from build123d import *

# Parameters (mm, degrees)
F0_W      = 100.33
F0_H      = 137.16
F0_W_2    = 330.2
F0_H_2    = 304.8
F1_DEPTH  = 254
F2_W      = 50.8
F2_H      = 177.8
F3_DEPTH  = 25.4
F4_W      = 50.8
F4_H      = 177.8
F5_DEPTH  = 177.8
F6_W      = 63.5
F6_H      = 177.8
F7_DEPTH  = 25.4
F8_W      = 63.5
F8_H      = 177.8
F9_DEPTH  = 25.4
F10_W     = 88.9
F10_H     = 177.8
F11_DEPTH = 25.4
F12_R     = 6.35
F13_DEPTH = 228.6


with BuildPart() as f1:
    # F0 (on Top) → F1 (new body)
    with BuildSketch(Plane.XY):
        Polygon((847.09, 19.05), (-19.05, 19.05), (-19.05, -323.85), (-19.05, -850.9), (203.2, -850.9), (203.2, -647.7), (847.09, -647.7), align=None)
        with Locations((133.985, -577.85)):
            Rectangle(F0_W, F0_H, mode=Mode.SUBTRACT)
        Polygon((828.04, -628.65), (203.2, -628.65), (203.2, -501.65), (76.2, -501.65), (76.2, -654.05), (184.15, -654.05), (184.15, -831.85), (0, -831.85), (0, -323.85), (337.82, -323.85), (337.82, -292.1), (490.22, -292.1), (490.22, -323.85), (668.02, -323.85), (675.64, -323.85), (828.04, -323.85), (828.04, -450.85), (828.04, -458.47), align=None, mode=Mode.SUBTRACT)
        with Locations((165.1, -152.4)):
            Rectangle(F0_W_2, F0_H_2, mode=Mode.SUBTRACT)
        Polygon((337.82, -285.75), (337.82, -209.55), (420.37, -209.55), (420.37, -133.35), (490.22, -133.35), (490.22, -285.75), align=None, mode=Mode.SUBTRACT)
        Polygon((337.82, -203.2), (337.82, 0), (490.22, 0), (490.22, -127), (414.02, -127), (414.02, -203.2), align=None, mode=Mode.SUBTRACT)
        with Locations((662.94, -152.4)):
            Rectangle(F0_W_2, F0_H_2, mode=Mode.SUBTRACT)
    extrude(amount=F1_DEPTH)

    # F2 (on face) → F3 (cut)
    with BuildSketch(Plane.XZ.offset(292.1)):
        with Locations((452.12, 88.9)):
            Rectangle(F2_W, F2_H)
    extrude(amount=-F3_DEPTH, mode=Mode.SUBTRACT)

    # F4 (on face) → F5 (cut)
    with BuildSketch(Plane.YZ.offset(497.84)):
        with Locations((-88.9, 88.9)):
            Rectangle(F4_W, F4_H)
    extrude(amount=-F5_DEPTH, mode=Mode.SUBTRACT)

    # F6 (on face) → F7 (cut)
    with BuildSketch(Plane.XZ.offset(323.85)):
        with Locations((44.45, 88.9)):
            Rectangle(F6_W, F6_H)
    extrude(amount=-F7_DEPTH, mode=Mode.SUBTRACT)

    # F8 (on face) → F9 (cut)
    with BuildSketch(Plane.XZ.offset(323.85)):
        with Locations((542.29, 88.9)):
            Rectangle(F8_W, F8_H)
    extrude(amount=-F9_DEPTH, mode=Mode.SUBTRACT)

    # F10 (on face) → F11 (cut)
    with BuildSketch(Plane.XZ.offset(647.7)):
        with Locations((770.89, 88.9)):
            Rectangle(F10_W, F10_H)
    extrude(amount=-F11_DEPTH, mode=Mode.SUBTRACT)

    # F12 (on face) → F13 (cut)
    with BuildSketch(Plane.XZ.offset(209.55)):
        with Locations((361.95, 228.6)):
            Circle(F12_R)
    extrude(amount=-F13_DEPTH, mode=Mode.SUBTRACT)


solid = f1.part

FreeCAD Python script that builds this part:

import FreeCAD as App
import Part
import Sketcher
from FreeCAD import Vector
Q = App.Units.Quantity

doc = App.newDocument("Part")
body = doc.addObject("PartDesign::Body", "Body")

# Sketch on XY plane
sketch1 = doc.addObject("Sketcher::SketchObject", "Sketch")
body.addObject(sketch1)
sketch1.AttachmentSupport = (doc.XY_Plane, [""])
sketch1.MapMode = "FlatFace"
sketch1.addGeometry([
    Part.LineSegment(Vector(847.09, 19.05, 0), Vector(-19.05, 19.05, 0)),  # 0
    Part.LineSegment(Vector(-19.05, 19.05, 0), Vector(-19.05, -850.9, 0)),  # 1
    Part.LineSegment(Vector(-19.05, -850.9, 0), Vector(203.2, -850.9, 0)),  # 2
    Part.LineSegment(Vector(203.2, -850.9, 0), Vector(203.2, -647.7, 0)),  # 3
    Part.LineSegment(Vector(203.2, -647.7, 0), Vector(847.09, -647.7, 0)),  # 4
    Part.LineSegment(Vector(847.09, -647.7, 0), Vector(847.09, 19.05, 0)),  # 5
    Part.LineSegment(Vector(184.15, -646.43, 0), Vector(83.82, -646.43, 0)),  # 6
    Part.LineSegment(Vector(83.82, -646.43, 0), Vector(83.82, -509.27, 0)),  # 7
    Part.LineSegment(Vector(83.82, -509.27, 0), Vector(184.15, -509.27, 0)),  # 8
    Part.LineSegment(Vector(184.15, -509.27, 0), Vector(184.15, -646.43, 0)),  # 9
    Part.LineSegment(Vector(828.04, -323.85, 0), Vector(828.04, -628.65, 0)),  # 10
    Part.LineSegment(Vector(828.04, -628.65, 0), Vector(203.2, -628.65, 0)),  # 11
    Part.LineSegment(Vector(203.2, -628.65, 0), Vector(203.2, -501.65, 0)),  # 12
    Part.LineSegment(Vector(203.2, -501.65, 0), Vector(76.2, -501.65, 0)),  # 13
    Part.LineSegment(Vector(76.2, -501.65, 0), Vector(76.2, -654.05, 0)),  # 14
    Part.LineSegment(Vector(76.2, -654.05, 0), Vector(184.15, -654.05, 0)),  # 15
    Part.LineSegment(Vector(184.15, -654.05, 0), Vector(184.15, -831.85, 0)),  # 16
    Part.LineSegment(Vector(184.15, -831.85, 0), Vector(0, -831.85, 0)),  # 17
    Part.LineSegment(Vector(0, -831.85, 0), Vector(0, -323.85, 0)),  # 18
    Part.LineSegment(Vector(0, -323.85, 0), Vector(337.82, -323.85, 0)),  # 19
    Part.LineSegment(Vector(337.82, -323.85, 0), Vector(337.82, -292.1, 0)),  # 20
    Part.LineSegment(Vector(337.82, -292.1, 0), Vector(490.22, -292.1, 0)),  # 21
    Part.LineSegment(Vector(490.22, -292.1, 0), Vector(490.22, -323.85, 0)),  # 22
    Part.LineSegment(Vector(490.22, -323.85, 0), Vector(828.04, -323.85, 0)),  # 23
    Part.LineSegment(Vector(490.22, -285.75, 0), Vector(337.82, -285.75, 0)),  # 24
    Part.LineSegment(Vector(337.82, -285.75, 0), Vector(337.82, -209.55, 0)),  # 25
    Part.LineSegment(Vector(337.82, -209.55, 0), Vector(420.37, -209.55, 0)),  # 26
    Part.LineSegment(Vector(420.37, -209.55, 0), Vector(420.37, -133.35, 0)),  # 27
    Part.LineSegment(Vector(420.37, -133.35, 0), Vector(490.22, -133.35, 0)),  # 28
    Part.LineSegment(Vector(490.22, -133.35, 0), Vector(490.22, -285.75, 0)),  # 29
    Part.LineSegment(Vector(330.2, -304.8, 0), Vector(0, -304.8, 0)),  # 30
    Part.LineSegment(Vector(0, -304.8, 0), Vector(0, 0, 0)),  # 31
    Part.LineSegment(Vector(0, 0, 0), Vector(330.2, 0, 0)),  # 32
    Part.LineSegment(Vector(330.2, 0, 0), Vector(330.2, -304.8, 0)),  # 33
    Part.LineSegment(Vector(414.02, -203.2, 0), Vector(337.82, -203.2, 0)),  # 34
    Part.LineSegment(Vector(337.82, -203.2, 0), Vector(337.82, 0, 0)),  # 35
    Part.LineSegment(Vector(337.82, 0, 0), Vector(490.22, 0, 0)),  # 36
    Part.LineSegment(Vector(490.22, 0, 0), Vector(490.22, -127, 0)),  # 37
    Part.LineSegment(Vector(490.22, -127, 0), Vector(414.02, -127, 0)),  # 38
    Part.LineSegment(Vector(414.02, -127, 0), Vector(414.02, -203.2, 0)),  # 39
    Part.LineSegment(Vector(828.04, -304.8, 0), Vector(497.84, -304.8, 0)),  # 40
    Part.LineSegment(Vector(497.84, -304.8, 0), Vector(497.84, 0, 0)),  # 41
    Part.LineSegment(Vector(497.84, 0, 0), Vector(828.04, 0, 0)),  # 42
    Part.LineSegment(Vector(828.04, 0, 0), Vector(828.04, -304.8, 0)),  # 43
], False)
sketch1.addConstraint([
    Sketcher.Constraint("Coincident", 0, 2, 1, 1),
    Sketcher.Constraint("Coincident", 1, 2, 2, 1),
    Sketcher.Constraint("Coincident", 2, 2, 3, 1),
    Sketcher.Constraint("Coincident", 3, 2, 4, 1),
    Sketcher.Constraint("Coincident", 4, 2, 5, 1),
    Sketcher.Constraint("Coincident", 5, 2, 0, 1),
    Sketcher.Constraint("Coincident", 6, 2, 7, 1),
    Sketcher.Constraint("Coincident", 7, 2, 8, 1),
    Sketcher.Constraint("Coincident", 8, 2, 9, 1),
    Sketcher.Constraint("Coincident", 9, 2, 6, 1),
    Sketcher.Constraint("Coincident", 10, 2, 11, 1),
    Sketcher.Constraint("Coincident", 11, 2, 12, 1),
    Sketcher.Constraint("Coincident", 12, 2, 13, 1),
    Sketcher.Constraint("Coincident", 13, 2, 14, 1),
    Sketcher.Constraint("Coincident", 14, 2, 15, 1),
    Sketcher.Constraint("Coincident", 15, 2, 16, 1),
    Sketcher.Constraint("Coincident", 16, 2, 17, 1),
    Sketcher.Constraint("Coincident", 17, 2, 18, 1),
    Sketcher.Constraint("Coincident", 18, 2, 19, 1),
    Sketcher.Constraint("Coincident", 19, 2, 20, 1),
    Sketcher.Constraint("Coincident", 20, 2, 21, 1),
    Sketcher.Constraint("Coincident", 21, 2, 22, 1),
    Sketcher.Constraint("Coincident", 22, 2, 23, 1),
    Sketcher.Constraint("Coincident", 23, 2, 10, 1),
    Sketcher.Constraint("Coincident", 24, 2, 25, 1),
    Sketcher.Constraint("Coincident", 25, 2, 26, 1),
    Sketcher.Constraint("Coincident", 26, 2, 27, 1),
    Sketcher.Constraint("Coincident", 27, 2, 28, 1),
    Sketcher.Constraint("Coincident", 28, 2, 29, 1),
    Sketcher.Constraint("Coincident", 29, 2, 24, 1),
    Sketcher.Constraint("Coincident", 30, 2, 31, 1),
    Sketcher.Constraint("Coincident", 31, 2, 32, 1),
    Sketcher.Constraint("Coincident", 32, 2, 33, 1),
    Sketcher.Constraint("Coincident", 33, 2, 30, 1),
    Sketcher.Constraint("Coincident", 34, 2, 35, 1),
    Sketcher.Constraint("Coincident", 35, 2, 36, 1),
    Sketcher.Constraint("Coincident", 36, 2, 37, 1),
    Sketcher.Constraint("Coincident", 37, 2, 38, 1),
    Sketcher.Constraint("Coincident", 38, 2, 39, 1),
    Sketcher.Constraint("Coincident", 39, 2, 34, 1),
    Sketcher.Constraint("Coincident", 40, 2, 41, 1),
    Sketcher.Constraint("Coincident", 41, 2, 42, 1),
    Sketcher.Constraint("Coincident", 42, 2, 43, 1),
    Sketcher.Constraint("Coincident", 43, 2, 40, 1),
    Sketcher.Constraint("Horizontal", 0),
    Sketcher.Constraint("Vertical", 1),
    Sketcher.Constraint("Horizontal", 2),
    Sketcher.Constraint("Vertical", 3),
    Sketcher.Constraint("Horizontal", 4),
    Sketcher.Constraint("Vertical", 5),
    Sketcher.Constraint("Horizontal", 6),
    Sketcher.Constraint("Vertical", 7),
    Sketcher.Constraint("Horizontal", 8),
    Sketcher.Constraint("Vertical", 9),
    Sketcher.Constraint("Vertical", 10),
    Sketcher.Constraint("Horizontal", 11),
    Sketcher.Constraint("Vertical", 12),
    Sketcher.Constraint("Horizontal", 13),
    Sketcher.Constraint("Vertical", 14),
    Sketcher.Constraint("Horizontal", 15),
    Sketcher.Constraint("Vertical", 16),
    Sketcher.Constraint("Horizontal", 17),
    Sketcher.Constraint("Vertical", 18),
    Sketcher.Constraint("Horizontal", 19),
    Sketcher.Constraint("Vertical", 20),
    Sketcher.Constraint("Horizontal", 21),
    Sketcher.Constraint("Vertical", 22),
    Sketcher.Constraint("Horizontal", 23),
    Sketcher.Constraint("Horizontal", 24),
    Sketcher.Constraint("Vertical", 25),
    Sketcher.Constraint("Horizontal", 26),
    Sketcher.Constraint("Vertical", 27),
    Sketcher.Constraint("Horizontal", 28),
    Sketcher.Constraint("Vertical", 29),
    Sketcher.Constraint("Horizontal", 30),
    Sketcher.Constraint("Vertical", 31),
    Sketcher.Constraint("Horizontal", 32),
    Sketcher.Constraint("Vertical", 33),
    Sketcher.Constraint("Horizontal", 34),
    Sketcher.Constraint("Vertical", 35),
    Sketcher.Constraint("Horizontal", 36),
    Sketcher.Constraint("Vertical", 37),
    Sketcher.Constraint("Horizontal", 38),
    Sketcher.Constraint("Vertical", 39),
    Sketcher.Constraint("Horizontal", 40),
    Sketcher.Constraint("Vertical", 41),
    Sketcher.Constraint("Horizontal", 42),
    Sketcher.Constraint("Vertical", 43),
    Sketcher.Constraint("Coincident", 31, 2, -1, 1),
    Sketcher.Constraint("PointOnObject", 17, 2, -2),
    Sketcher.Constraint("PointOnObject", 35, 2, -1),
    Sketcher.Constraint("PointOnObject", 41, 2, -1),
    Sketcher.Constraint("Horizontal", 19, 2, 22, 2),
    Sketcher.Constraint("Horizontal", 33, 2, 40, 2),
    Sketcher.Constraint("Vertical", 3, 2, 11, 2),
    Sketcher.Constraint("Vertical", 9, 2, 15, 2),
    Sketcher.Constraint("Vertical", 20, 2, 24, 2),
    Sketcher.Constraint("Vertical", 22, 2, 28, 2),
    Sketcher.Constraint("Vertical", 25, 2, 34, 2),
    Sketcher.Constraint("Vertical", 29, 2, 36, 2),
    Sketcher.Constraint("Vertical", 23, 2, 42, 2),
    Sketcher.Constraint("Equal", 19, 23),
    Sketcher.Constraint("Equal", 34, 38),
    Sketcher.Constraint("Equal", 32, 40),
    Sketcher.Constraint("Equal", 13, 12),
    Sketcher.Constraint("Equal", 36, 14),
    Sketcher.Constraint("Equal", 38, 25),
    Sketcher.Constraint("Equal", 25, 27),
    Sketcher.Constraint("Equal", 10, 31),
    Sketcher.Constraint("Equal", 3, 35),
    Sketcher.Constraint("Equal", 12, 37),
    Sketcher.Constraint("Equal", 27, 39),
    Sketcher.Constraint("DistanceX", 13, 2, 13, 1, Q("5 in")),
    Sketcher.Constraint("DistanceX", 21, 1, 21, 2, Q("6 in")),
    Sketcher.Constraint("DistanceX", 30, 2, 30, 1, Q("13 in")),
    Sketcher.Constraint("DistanceY", 10, 2, 10, 1, Q("12 in")),
    Sketcher.Constraint("DistanceY", 16, 2, 16, 1, Q("7 in")),
    Sketcher.Constraint("DistanceX", 0, 2, 0, 1, Q("34.1 in")),
    Sketcher.Constraint("DistanceX", 11, 2, 11, 1, Q("24.6 in")),
    Sketcher.Constraint("DistanceX", 19, 1, 19, 2, Q("13.3 in")),
    Sketcher.Constraint("DistanceY", 7, 1, 7, 2, Q("5.4 in")),
    Sketcher.Constraint("DistanceX", 1, 2, 8, 2, Q("8 in")),
    Sketcher.Constraint("DistanceX", 7, 2, 19, 2, Q("10 in")),
    Sketcher.Constraint("DistanceX", 2, 1, 2, 2, Q("8.75 in")),
    Sketcher.Constraint("DistanceX", 26, 1, 26, 2, Q("3.25 in")),
    Sketcher.Constraint("DistanceY", 1, 2, 1, 1, Q("34.25 in")),
    Sketcher.Constraint("DistanceY", 20, 1, 20, 2, Q("1.25 in")),
    Sketcher.Constraint("DistanceY", 1, 2, -1, 1, Q("33.5 in")),
    Sketcher.Constraint("DistanceY", 20, 2, -1, 1, Q("11.5 in")),
    Sketcher.Constraint("DistanceY", 6, 2, 0, 2, Q("26.2 in")),
    Sketcher.Constraint("DistanceY", 19, 2, 24, 2, Q("1.5 in")),
])
pad1 = doc.addObject("PartDesign::Pad", "Pad")
body.addObject(pad1)
pad1.Profile = sketch1
pad1.Length = Q("10 in")

# Sketch on XZ plane
sketch2 = doc.addObject("Sketcher::SketchObject", "Sketch001")
body.addObject(sketch2)
sketch2.AttachmentSupport = (doc.XZ_Plane, [""])
sketch2.MapMode = "FlatFace"
sketch2.AttachmentOffset = App.Placement(Vector(0, 0, 11.5 * 25.4), App.Rotation())
sketch2.addGeometry([
    Part.LineSegment(Vector(426.72, 177.8, 0), Vector(426.72, 0, 0)),
    Part.LineSegment(Vector(426.72, 0, 0), Vector(477.52, 0, 0)),
    Part.LineSegment(Vector(477.52, 0, 0), Vector(477.52, 177.8, 0)),
    Part.LineSegment(Vector(477.52, 177.8, 0), Vector(426.72, 177.8, 0)),
], False)
sketch2.addConstraint([
    Sketcher.Constraint("Coincident", 0, 2, 1, 1),
    Sketcher.Constraint("Coincident", 1, 2, 2, 1),
    Sketcher.Constraint("Coincident", 2, 2, 3, 1),
    Sketcher.Constraint("Coincident", 3, 2, 0, 1),
    Sketcher.Constraint("Vertical", 0),
    Sketcher.Constraint("Horizontal", 1),
    Sketcher.Constraint("Vertical", 2),
    Sketcher.Constraint("Horizontal", 3),
    Sketcher.Constraint("PointOnObject", 0, 2, -1),
    Sketcher.Constraint("DistanceX", 1, 1, 1, 2, Q("2 in")),
    Sketcher.Constraint("DistanceY", 0, 2, 0, 1, Q("7 in")),
    Sketcher.Constraint("DistanceX", -1, 1, 0, 2, Q("16.8 in")),
])
pocket1 = doc.addObject("PartDesign::Pocket", "Pocket")
body.addObject(pocket1)
pocket1.Profile = sketch2
pocket1.Length = Q("1 in")

# Sketch on YZ plane
sketch3 = doc.addObject("Sketcher::SketchObject", "Sketch002")
body.addObject(sketch3)
sketch3.AttachmentSupport = (doc.YZ_Plane, [""])
sketch3.MapMode = "FlatFace"
sketch3.AttachmentOffset = App.Placement(Vector(0, 0, 19.6 * 25.4), App.Rotation())
sketch3.addGeometry([
    Part.LineSegment(Vector(-114.3, 177.8, 0), Vector(-114.3, 0, 0)),
    Part.LineSegment(Vector(-114.3, 0, 0), Vector(-63.5, 0, 0)),
    Part.LineSegment(Vector(-63.5, 0, 0), Vector(-63.5, 177.8, 0)),
    Part.LineSegment(Vector(-63.5, 177.8, 0), Vector(-114.3, 177.8, 0)),
], False)
sketch3.addConstraint([
    Sketcher.Constraint("Coincident", 0, 2, 1, 1),
    Sketcher.Constraint("Coincident", 1, 2, 2, 1),
    Sketcher.Constraint("Coincident", 2, 2, 3, 1),
    Sketcher.Constraint("Coincident", 3, 2, 0, 1),
    Sketcher.Constraint("Vertical", 0),
    Sketcher.Constraint("Horizontal", 1),
    Sketcher.Constraint("Vertical", 2),
    Sketcher.Constraint("Horizontal", 3),
    Sketcher.Constraint("PointOnObject", 0, 2, -1),
    Sketcher.Constraint("DistanceX", 1, 1, 1, 2, Q("2 in")),
    Sketcher.Constraint("DistanceY", 0, 2, 0, 1, Q("7 in")),
    Sketcher.Constraint("DistanceX", 0, 2, -1, 1, Q("4.5 in")),
])
pocket2 = doc.addObject("PartDesign::Pocket", "Pocket001")
body.addObject(pocket2)
pocket2.Profile = sketch3
pocket2.Length = Q("7 in")

# Sketch on XZ plane
sketch4 = doc.addObject("Sketcher::SketchObject", "Sketch003")
body.addObject(sketch4)
sketch4.AttachmentSupport = (doc.XZ_Plane, [""])
sketch4.MapMode = "FlatFace"
sketch4.AttachmentOffset = App.Placement(Vector(0, 0, 12.75 * 25.4), App.Rotation())
sketch4.addGeometry([
    Part.LineSegment(Vector(12.7, 177.8, 0), Vector(12.7, 0, 0)),
    Part.LineSegment(Vector(12.7, 0, 0), Vector(76.2, 0, 0)),
    Part.LineSegment(Vector(76.2, 0, 0), Vector(76.2, 177.8, 0)),
    Part.LineSegment(Vector(76.2, 177.8, 0), Vector(12.7, 177.8, 0)),
], False)
sketch4.addConstraint([
    Sketcher.Constraint("Coincident", 0, 2, 1, 1),
    Sketcher.Constraint("Coincident", 1, 2, 2, 1),
    Sketcher.Constraint("Coincident", 2, 2, 3, 1),
    Sketcher.Constraint("Coincident", 3, 2, 0, 1),
    Sketcher.Constraint("Vertical", 0),
    Sketcher.Constraint("Horizontal", 1),
    Sketcher.Constraint("Vertical", 2),
    Sketcher.Constraint("Horizontal", 3),
    Sketcher.Constraint("PointOnObject", 0, 2, -1),
    Sketcher.Constraint("DistanceY", 0, 2, 0, 1, Q("7 in")),
    Sketcher.Constraint("DistanceX", 1, 1, 1, 2, Q("2.5 in")),
    Sketcher.Constraint("DistanceX", -1, 1, 1, 2, Q("3 in")),
])
pocket3 = doc.addObject("PartDesign::Pocket", "Pocket002")
body.addObject(pocket3)
pocket3.Profile = sketch4
pocket3.Length = Q("1 in")

# Sketch on XZ plane
sketch5 = doc.addObject("Sketcher::SketchObject", "Sketch004")
body.addObject(sketch5)
sketch5.AttachmentSupport = (doc.XZ_Plane, [""])
sketch5.MapMode = "FlatFace"
sketch5.AttachmentOffset = App.Placement(Vector(0, 0, 12.75 * 25.4), App.Rotation())
sketch5.addGeometry([
    Part.LineSegment(Vector(510.54, 177.8, 0), Vector(510.54, 0, 0)),
    Part.LineSegment(Vector(510.54, 0, 0), Vector(574.04, 0, 0)),
    Part.LineSegment(Vector(574.04, 0, 0), Vector(574.04, 177.8, 0)),
    Part.LineSegment(Vector(574.04, 177.8, 0), Vector(510.54, 177.8, 0)),
], False)
sketch5.addConstraint([
    Sketcher.Constraint("Coincident", 0, 2, 1, 1),
    Sketcher.Constraint("Coincident", 1, 2, 2, 1),
    Sketcher.Constraint("Coincident", 2, 2, 3, 1),
    Sketcher.Constraint("Coincident", 3, 2, 0, 1),
    Sketcher.Constraint("Vertical", 0),
    Sketcher.Constraint("Horizontal", 1),
    Sketcher.Constraint("Vertical", 2),
    Sketcher.Constraint("Horizontal", 3),
    Sketcher.Constraint("PointOnObject", 0, 2, -1),
    Sketcher.Constraint("DistanceY", 0, 2, 0, 1, Q("7 in")),
    Sketcher.Constraint("DistanceX", 1, 1, 1, 2, Q("2.5 in")),
    Sketcher.Constraint("DistanceX", -1, 1, 0, 2, Q("20.1 in")),
])
pocket4 = doc.addObject("PartDesign::Pocket", "Pocket003")
body.addObject(pocket4)
pocket4.Profile = sketch5
pocket4.Length = Q("1 in")

# Sketch on XZ plane
sketch6 = doc.addObject("Sketcher::SketchObject", "Sketch005")
body.addObject(sketch6)
sketch6.AttachmentSupport = (doc.XZ_Plane, [""])
sketch6.MapMode = "FlatFace"
sketch6.AttachmentOffset = App.Placement(Vector(0, 0, 25.5 * 25.4), App.Rotation())
sketch6.addGeometry([
    Part.LineSegment(Vector(726.44, 177.8, 0), Vector(726.44, 0, 0)),
    Part.LineSegment(Vector(726.44, 0, 0), Vector(815.34, 0, 0)),
    Part.LineSegment(Vector(815.34, 0, 0), Vector(815.34, 177.8, 0)),
    Part.LineSegment(Vector(815.34, 177.8, 0), Vector(726.44, 177.8, 0)),
], False)
sketch6.addConstraint([
    Sketcher.Constraint("Coincident", 0, 2, 1, 1),
    Sketcher.Constraint("Coincident", 1, 2, 2, 1),
    Sketcher.Constraint("Coincident", 2, 2, 3, 1),
    Sketcher.Constraint("Coincident", 3, 2, 0, 1),
    Sketcher.Constraint("Vertical", 0),
    Sketcher.Constraint("Horizontal", 1),
    Sketcher.Constraint("Vertical", 2),
    Sketcher.Constraint("Horizontal", 3),
    Sketcher.Constraint("PointOnObject", 0, 2, -1),
    Sketcher.Constraint("DistanceY", 0, 2, 0, 1, Q("7 in")),
    Sketcher.Constraint("DistanceX", 1, 1, 1, 2, Q("3.5 in")),
    Sketcher.Constraint("DistanceX", -1, 1, 0, 2, Q("28.6 in")),
])
pocket5 = doc.addObject("PartDesign::Pocket", "Pocket004")
body.addObject(pocket5)
pocket5.Profile = sketch6
pocket5.Length = Q("1 in")

# Sketch on XZ plane
sketch7 = doc.addObject("Sketcher::SketchObject", "Sketch006")
body.addObject(sketch7)
sketch7.AttachmentSupport = (doc.XZ_Plane, [""])
sketch7.MapMode = "FlatFace"
sketch7.AttachmentOffset = App.Placement(Vector(0, 0, 8.25 * 25.4), App.Rotation())
sketch7.addGeometry(Part.Circle(Vector(361.95, 228.6, 0), Vector(0, 0, 1), 6.35), False)
sketch7.addConstraint([
    Sketcher.Constraint("Diameter", 0, Q("0.5 in")),
    Sketcher.Constraint("DistanceY", -1, 1, 0, 3, Q("9 in")),
    Sketcher.Constraint("DistanceX", -1, 1, 0, 3, Q("14.25 in")),
])
pocket6 = doc.addObject("PartDesign::Pocket", "Pocket005")
body.addObject(pocket6)
pocket6.Profile = sketch7
pocket6.Length = Q("9 in")

doc.recompute()
